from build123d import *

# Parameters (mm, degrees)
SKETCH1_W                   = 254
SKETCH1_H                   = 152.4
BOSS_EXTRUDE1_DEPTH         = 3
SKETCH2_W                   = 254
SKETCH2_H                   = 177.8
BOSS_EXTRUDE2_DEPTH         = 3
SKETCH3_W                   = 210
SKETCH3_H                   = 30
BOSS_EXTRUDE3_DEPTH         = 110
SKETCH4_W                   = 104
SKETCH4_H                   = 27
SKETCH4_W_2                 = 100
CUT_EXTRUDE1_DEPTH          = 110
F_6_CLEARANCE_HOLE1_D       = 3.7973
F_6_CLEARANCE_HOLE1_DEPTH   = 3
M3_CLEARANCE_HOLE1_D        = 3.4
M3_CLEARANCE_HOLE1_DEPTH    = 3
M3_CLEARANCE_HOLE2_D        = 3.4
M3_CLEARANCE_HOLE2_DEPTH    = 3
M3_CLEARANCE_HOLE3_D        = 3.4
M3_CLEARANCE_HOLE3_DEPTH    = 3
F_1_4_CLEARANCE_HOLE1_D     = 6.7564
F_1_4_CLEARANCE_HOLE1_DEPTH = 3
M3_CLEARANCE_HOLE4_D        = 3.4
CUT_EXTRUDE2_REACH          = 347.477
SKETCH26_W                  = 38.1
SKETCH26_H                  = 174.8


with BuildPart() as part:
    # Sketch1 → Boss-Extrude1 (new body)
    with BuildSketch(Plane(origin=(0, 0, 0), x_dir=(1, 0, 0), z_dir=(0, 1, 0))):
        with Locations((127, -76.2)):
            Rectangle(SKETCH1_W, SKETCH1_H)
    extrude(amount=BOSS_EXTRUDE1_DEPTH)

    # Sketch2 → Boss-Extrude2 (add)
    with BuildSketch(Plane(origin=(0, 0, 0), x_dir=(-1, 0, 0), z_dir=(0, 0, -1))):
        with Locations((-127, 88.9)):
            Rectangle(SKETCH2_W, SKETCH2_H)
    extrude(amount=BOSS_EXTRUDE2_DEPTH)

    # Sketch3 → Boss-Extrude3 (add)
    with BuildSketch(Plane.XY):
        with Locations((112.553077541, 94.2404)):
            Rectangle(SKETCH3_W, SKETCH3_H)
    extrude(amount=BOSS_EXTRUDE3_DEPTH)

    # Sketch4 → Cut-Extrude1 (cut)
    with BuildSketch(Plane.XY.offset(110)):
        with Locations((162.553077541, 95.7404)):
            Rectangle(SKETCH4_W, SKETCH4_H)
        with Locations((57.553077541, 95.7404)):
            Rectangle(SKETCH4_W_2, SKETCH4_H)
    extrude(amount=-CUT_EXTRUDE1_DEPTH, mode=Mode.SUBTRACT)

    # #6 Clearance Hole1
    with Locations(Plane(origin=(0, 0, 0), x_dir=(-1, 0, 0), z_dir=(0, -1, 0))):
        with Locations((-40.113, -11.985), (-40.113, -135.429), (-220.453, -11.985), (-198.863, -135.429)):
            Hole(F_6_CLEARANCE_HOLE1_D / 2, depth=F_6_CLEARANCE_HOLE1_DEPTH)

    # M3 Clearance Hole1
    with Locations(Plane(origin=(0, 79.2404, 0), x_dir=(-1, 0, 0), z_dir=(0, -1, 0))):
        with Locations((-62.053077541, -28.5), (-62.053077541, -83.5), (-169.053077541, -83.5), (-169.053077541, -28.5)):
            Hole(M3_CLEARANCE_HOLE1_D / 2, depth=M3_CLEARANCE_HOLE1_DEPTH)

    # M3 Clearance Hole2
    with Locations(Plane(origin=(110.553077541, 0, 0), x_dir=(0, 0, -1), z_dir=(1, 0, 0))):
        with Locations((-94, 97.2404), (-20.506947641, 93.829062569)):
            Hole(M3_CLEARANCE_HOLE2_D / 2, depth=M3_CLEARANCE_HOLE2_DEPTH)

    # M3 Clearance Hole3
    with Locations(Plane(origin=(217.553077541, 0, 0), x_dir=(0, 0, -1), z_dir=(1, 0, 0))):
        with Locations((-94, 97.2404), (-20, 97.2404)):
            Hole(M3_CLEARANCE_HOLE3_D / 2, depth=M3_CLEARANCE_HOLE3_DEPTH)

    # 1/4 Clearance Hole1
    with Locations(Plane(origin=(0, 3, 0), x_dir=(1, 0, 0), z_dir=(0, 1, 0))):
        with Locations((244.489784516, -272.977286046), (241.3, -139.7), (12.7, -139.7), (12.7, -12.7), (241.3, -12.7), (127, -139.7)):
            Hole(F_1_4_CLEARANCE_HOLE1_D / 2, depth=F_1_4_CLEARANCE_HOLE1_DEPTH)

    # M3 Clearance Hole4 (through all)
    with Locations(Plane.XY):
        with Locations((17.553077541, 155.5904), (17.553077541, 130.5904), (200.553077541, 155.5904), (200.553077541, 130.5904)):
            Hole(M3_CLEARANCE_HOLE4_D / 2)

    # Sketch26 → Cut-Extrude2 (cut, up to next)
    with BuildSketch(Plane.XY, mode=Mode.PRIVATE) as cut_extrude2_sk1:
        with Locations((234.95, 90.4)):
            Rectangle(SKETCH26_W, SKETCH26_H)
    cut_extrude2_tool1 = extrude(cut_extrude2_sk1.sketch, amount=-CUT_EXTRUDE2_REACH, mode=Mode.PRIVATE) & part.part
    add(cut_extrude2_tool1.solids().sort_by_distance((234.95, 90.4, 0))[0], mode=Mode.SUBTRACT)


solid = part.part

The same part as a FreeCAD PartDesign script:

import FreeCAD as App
import Part
import Sketcher
from FreeCAD import Vector

doc = App.newDocument("Part")
params = doc.addObject("Spreadsheet::Sheet", "Params")
for row, (alias, value) in enumerate([
    ("sketch1_width", "254 mm"),
    ("sketch1_height", "152.4 mm"),
    ("pad1_length", "3 mm"),
    ("sketch2_width", "254 mm"),
    ("sketch2_height", "177.8 mm"),
    ("pad2_length", "3 mm"),
    ("sketch3_width", "210 mm"),
    ("sketch3_height", "30 mm"),
    ("pad3_length", "110 mm"),
    ("sketch4_width", "104 mm"),
    ("sketch4_width2", "100 mm"),
    ("sketch4_height", "27 mm"),
    ("pocket1_length", "110 mm"),
    ("hole_diameter", "3.7973 mm"),
    ("hole_depth", "3 mm"),
    ("sketch6_diameter", "3.4 mm"),
    ("hole2_diameter", "3.4 mm"),
    ("hole2_depth", "3 mm"),
    ("sketch7_diameter", "3.4 mm"),
    ("hole3_diameter", "3.4 mm"),
    ("hole3_depth", "3 mm"),
    ("sketch8_diameter", "3.4 mm"),
    ("hole4_diameter", "3.4 mm"),
    ("hole4_depth", "3 mm"),
    ("hole5_diameter", "6.7564 mm"),
    ("hole5_depth", "3 mm"),
    ("sketch10_diameter", "3.4 mm"),
    ("hole6_diameter", "3.4 mm"),
    ("sketch11_width", "38.1 mm"),
    ("sketch11_height", "174.8 mm"),
], start=1):
    params.set(f"A{row}", alias)
    params.set(f"B{row}", "=" + value)
    params.setAlias(f"B{row}", alias)

body = doc.addObject("PartDesign::Body", "Body")

sketch1 = doc.addObject("Sketcher::SketchObject", "Sketch")
body.addObject(sketch1)
sketch1.AttachmentSupport = (doc.XZ_Plane, [""])
sketch1.MapMode = "FlatFace"
sketch1.addGeometry([
    Part.LineSegment(Vector(0, 0, 0), Vector(0, 152, 0)),
    Part.LineSegment(Vector(0, 152, 0), Vector(254, 152, 0)),
    Part.LineSegment(Vector(254, 152, 0), Vector(254, 0, 0)),
    Part.LineSegment(Vector(254, 0, 0), Vector(0, 0, 0)),
], False)
sketch1.addConstraint([
    Sketcher.Constraint("Coincident", 0, 2, 1, 1),
    Sketcher.Constraint("Coincident", 1, 2, 2, 1),
    Sketcher.Constraint("Coincident", 2, 2, 3, 1),
    Sketcher.Constraint("Coincident", 3, 2, 0, 1),
    Sketcher.Constraint("Vertical", 0),
    Sketcher.Constraint("Horizontal", 1),
    Sketcher.Constraint("Vertical", 2),
    Sketcher.Constraint("Horizontal", 3),
    Sketcher.Constraint("Coincident", 3, 2, -1, 1),
    Sketcher.Constraint("DistanceX", 1, 1, 1, 2, 254.0),
    Sketcher.Constraint("DistanceY", 0, 1, 0, 2, 152.4),
])
sketch1.setExpression("Constraints[9]", "Params.sketch1_width")
sketch1.setExpression("Constraints[10]", "Params.sketch1_height")
pad1 = doc.addObject("PartDesign::Pad", "Pad")
body.addObject(pad1)
pad1.Profile = sketch1
pad1.setExpression("Length", "Params.pad1_length")
pad1.Reversed = True

sketch2 = doc.addObject("Sketcher::SketchObject", "Sketch001")
body.addObject(sketch2)
sketch2.AttachmentSupport = (doc.XY_Plane, [""])
sketch2.MapMode = "FlatFace"
sketch2.addGeometry([
    Part.LineSegment(Vector(254, 178, 0), Vector(254, 0, 0)),
    Part.LineSegment(Vector(254, 0, 0), Vector(0, 0, 0)),
    Part.LineSegment(Vector(0, 0, 0), Vector(0, 178, 0)),
    Part.LineSegment(Vector(0, 178, 0), Vector(254, 178, 0)),
], False)
sketch2.addConstraint([
    Sketcher.Constraint("Coincident", 0, 2, 1, 1),
    Sketcher.Constraint("Coincident", 1, 2, 2, 1),
    Sketcher.Constraint("Coincident", 2, 2, 3, 1),
    Sketcher.Constraint("Coincident", 3, 2, 0, 1),
    Sketcher.Constraint("Vertical", 0),
    Sketcher.Constraint("Horizontal", 1),
    Sketcher.Constraint("Vertical", 2),
    Sketcher.Constraint("Horizontal", 3),
    Sketcher.Constraint("Coincident", 1, 2, -1, 1),
    Sketcher.Constraint("DistanceX", 1, 2, 1, 1, 254.0),
    Sketcher.Constraint("DistanceY", 0, 2, 0, 1, 177.8),
])
sketch2.setExpression("Constraints[9]", "Params.sketch2_width")
sketch2.setExpression("Constraints[10]", "Params.sketch2_height")
pad2 = doc.addObject("PartDesign::Pad", "Pad001")
body.addObject(pad2)
pad2.Profile = sketch2
pad2.setExpression("Length", "Params.pad2_length")
pad2.Reversed = True

sketch3 = doc.addObject("Sketcher::SketchObject", "Sketch002")
body.addObject(sketch3)
sketch3.AttachmentSupport = (doc.XY_Plane, [""])
sketch3.MapMode = "FlatFace"
sketch3.addGeometry([
    Part.LineSegment(Vector(8, 109, 0), Vector(8, 79, 0)),
    Part.LineSegment(Vector(8, 79, 0), Vector(218, 79, 0)),
    Part.LineSegment(Vector(218, 79, 0), Vector(218, 109, 0)),
    Part.LineSegment(Vector(218, 109, 0), Vector(8, 109, 0)),
], False)
sketch3.addConstraint([
    Sketcher.Constraint("Coincident", 0, 2, 1, 1),
    Sketcher.Constraint("Coincident", 1, 2, 2, 1),
    Sketcher.Constraint("Coincident", 2, 2, 3, 1),
    Sketcher.Constraint("Coincident", 3, 2, 0, 1),
    Sketcher.Constraint("Vertical", 0),
    Sketcher.Constraint("Horizontal", 1),
    Sketcher.Constraint("Vertical", 2),
    Sketcher.Constraint("Horizontal", 3),
    Sketcher.Constraint("DistanceX", 1, 1, 1, 2, 210.0),
    Sketcher.Constraint("DistanceY", 0, 2, 0, 1, 30.0),
    Sketcher.Constraint("DistanceY", -1, 1, 0, 2, 79.2404),
    Sketcher.Constraint("DistanceX", -1, 1, 0, 2, 7.553078),
])
sketch3.setExpression("Constraints[8]", "Params.sketch3_width")
sketch3.setExpression("Constraints[9]", "Params.sketch3_height")
pad3 = doc.addObject("PartDesign::Pad", "Pad002")
body.addObject(pad3)
pad3.Profile = sketch3
pad3.setExpression("Length", "Params.pad3_length")

sketch4 = doc.addObject("Sketcher::SketchObject", "Sketch003")
body.addObject(sketch4)
sketch4.AttachmentSupport = (doc.XY_Plane, [""])
sketch4.MapMode = "FlatFace"
sketch4.AttachmentOffset = App.Placement(Vector(0, 0, 110), App.Rotation())
sketch4.addGeometry([
    Part.LineSegment(Vector(111, 109, 0), Vector(111, 82, 0)),
    Part.LineSegment(Vector(111, 82, 0), Vector(215, 82, 0)),
    Part.LineSegment(Vector(215, 82, 0), Vector(215, 109, 0)),
    Part.LineSegment(Vector(215, 109, 0), Vector(111, 109, 0)),
    Part.LineSegment(Vector(8, 109, 0), Vector(8, 82, 0)),
    Part.LineSegment(Vector(8, 82, 0), Vector(108, 82, 0)),
    Part.LineSegment(Vector(108, 82, 0), Vector(108, 109, 0)),
    Part.LineSegment(Vector(108, 109, 0), Vector(8, 109, 0)),
], False)
sketch4.addConstraint([
    Sketcher.Constraint("Coincident", 0, 2, 1, 1),
    Sketcher.Constraint("Coincident", 1, 2, 2, 1),
    Sketcher.Constraint("Coincident", 2, 2, 3, 1),
    Sketcher.Constraint("Coincident", 3, 2, 0, 1),
    Sketcher.Constraint("Coincident", 4, 2, 5, 1),
    Sketcher.Constraint("Coincident", 5, 2, 6, 1),
    Sketcher.Constraint("Coincident", 6, 2, 7, 1),
    Sketcher.Constraint("Coincident", 7, 2, 4, 1),
    Sketcher.Constraint("Vertical", 0),
    Sketcher.Constraint("Horizontal", 1),
    Sketcher.Constraint("Vertical", 2),
    Sketcher.Constraint("Horizontal", 3),
    Sketcher.Constraint("Vertical", 4),
    Sketcher.Constraint("Horizontal", 5),
    Sketcher.Constraint("Vertical", 6),
    Sketcher.Constraint("Horizontal", 7),
    Sketcher.Constraint("Horizontal", 1, 2, 4, 2),
    Sketcher.Constraint("Horizontal", 3, 2, 6, 2),
    Sketcher.Constraint("DistanceX", 1, 1, 1, 2, 104.0),
    Sketcher.Constraint("DistanceX", 5, 1, 5, 2, 100.0),
    Sketcher.Constraint("DistanceY", 0, 2, 0, 1, 27.0),
    Sketcher.Constraint("DistanceX", 4, 2, 0, 2, 103.0),
    Sketcher.Constraint("DistanceY", -1, 1, 0, 2, 82.2404),
    Sketcher.Constraint("DistanceX", -1, 1, 0, 2, 110.553078),
])
sketch4.setExpression("Constraints[18]", "Params.sketch4_width")
sketch4.setExpression("Constraints[19]", "Params.sketch4_width2")
sketch4.setExpression("Constraints[20]", "Params.sketch4_height")
pocket1 = doc.addObject("PartDesign::Pocket", "Pocket")
body.addObject(pocket1)
pocket1.Profile = sketch4
pocket1.setExpression("Length", "Params.pocket1_length")

sketch5 = doc.addObject("Sketcher::SketchObject", "Sketch004")
body.addObject(sketch5)
sketch5.AttachmentSupport = (doc.XZ_Plane, [""])
sketch5.MapMode = "FlatFace"
sketch5.addGeometry([
    Part.Circle(Vector(40.1, 12, 0), Vector(0, 0, 1), 1.9),
    Part.Circle(Vector(40.1, 135.4, 0), Vector(0, 0, 1), 1.9),
    Part.Circle(Vector(220.5, 12, 0), Vector(0, 0, 1), 1.9),
    Part.Circle(Vector(198.9, 135.4, 0), Vector(0, 0, 1), 1.9),
], False)
sketch5.addConstraint([
    Sketcher.Constraint("Equal", 0, 1),
    Sketcher.Constraint("Equal", 1, 2),
    Sketcher.Constraint("Equal", 2, 3),
    Sketcher.Constraint("Horizontal", 0, 3, 2, 3),
    Sketcher.Constraint("Horizontal", 1, 3, 3, 3),
    Sketcher.Constraint("Vertical", 0, 3, 1, 3),
    Sketcher.Constraint("Diameter", 0, 3.7973),
    Sketcher.Constraint("DistanceX", 0, 3, 2, 3, 180.34),
    Sketcher.Constraint("DistanceX", 3, 3, 2, 3, 21.59),
    Sketcher.Constraint("DistanceX", -1, 1, 0, 3, 40.113),
    Sketcher.Constraint("DistanceY", -1, 1, 0, 3, 11.985),
    Sketcher.Constraint("DistanceY", -1, 1, 1, 3, 135.429),
])
doc.recompute()
hole = doc.addObject("PartDesign::Hole", "Hole")
body.addObject(hole)
hole.Profile = sketch5
hole.ThreadType = "None"
hole.setExpression("Diameter", "Params.hole_diameter")
hole.DepthType = "Dimension"
hole.setExpression("Depth", "Params.hole_depth")
hole.DrillPoint = "Flat"

sketch6 = doc.addObject("Sketcher::SketchObject", "Sketch005")
body.addObject(sketch6)
sketch6.AttachmentSupport = (doc.XZ_Plane, [""])
sketch6.MapMode = "FlatFace"
sketch6.AttachmentOffset = App.Placement(Vector(0, 0, -79.2404), App.Rotation())
sketch6.addGeometry([
    Part.Circle(Vector(62.1, 28.5, 0), Vector(0, 0, 1), 1.7),
    Part.Circle(Vector(62.1, 83.5, 0), Vector(0, 0, 1), 1.7),
    Part.Circle(Vector(169.1, 83.5, 0), Vector(0, 0, 1), 1.7),
    Part.Circle(Vector(169.1, 28.5, 0), Vector(0, 0, 1), 1.7),
], False)
sketch6.addConstraint([
    Sketcher.Constraint("Equal", 0, 1),
    Sketcher.Constraint("Equal", 1, 2),
    Sketcher.Constraint("Equal", 2, 3),
    Sketcher.Constraint("Horizontal", 1, 3, 2, 3),
    Sketcher.Constraint("Horizontal", 0, 3, 3, 3),
    Sketcher.Constraint("Vertical", 0, 3, 1, 3),
    Sketcher.Constraint("Vertical", 2, 3, 3, 3),
    Sketcher.Constraint("Diameter", 0, 3.4),
    Sketcher.Constraint("DistanceY", 0, 3, 1, 3, 55.0),
    Sketcher.Constraint("DistanceX", 1, 3, 2, 3, 107.0),
    Sketcher.Constraint("DistanceY", -1, 1, 0, 3, 28.5),
    Sketcher.Constraint("DistanceX", -1, 1, 0, 3, 62.053078),
])
sketch6.setExpression("Constraints[7]", "Params.sketch6_diameter")
doc.recompute()
hole2 = doc.addObject("PartDesign::Hole", "Hole001")
body.addObject(hole2)
hole2.Profile = sketch6
hole2.ThreadType = "None"
hole2.setExpression("Diameter", "Params.hole2_diameter")
hole2.DepthType = "Dimension"
hole2.setExpression("Depth", "Params.hole2_depth")
hole2.DrillPoint = "Flat"

sketch7 = doc.addObject("Sketcher::SketchObject", "Sketch006")
body.addObject(sketch7)
sketch7.AttachmentSupport = (doc.YZ_Plane, [""])
sketch7.MapMode = "FlatFace"
sketch7.AttachmentOffset = App.Placement(Vector(0, 0, 110.553078), App.Rotation())
sketch7.addGeometry([
    Part.Circle(Vector(97.2, 94, 0), Vector(0, 0, 1), 1.7),
    Part.Circle(Vector(93.8, 20.5, 0), Vector(0, 0, 1), 1.7),
], False)
sketch7.addConstraint([
    Sketcher.Constraint("Equal", 0, 1),
    Sketcher.Constraint("Diameter", 0, 3.4),
    Sketcher.Constraint("DistanceY", -1, 1, 0, 3, 94.0),
    Sketcher.Constraint("DistanceX", -1, 1, 0, 3, 97.2404),
    Sketcher.Constraint("DistanceX", -1, 1, 1, 3, 93.829063),
    Sketcher.Constraint("DistanceY", -1, 1, 1, 3, 20.506948),
])
sketch7.setExpression("Constraints[1]", "Params.sketch7_diameter")
doc.recompute()
hole3 = doc.addObject("PartDesign::Hole", "Hole002")
body.addObject(hole3)
hole3.Profile = sketch7
hole3.ThreadType = "None"
hole3.setExpression("Diameter", "Params.hole3_diameter")
hole3.DepthType = "Dimension"
hole3.setExpression("Depth", "Params.hole3_depth")
hole3.DrillPoint = "Flat"

sketch8 = doc.addObject("Sketcher::SketchObject", "Sketch007")
body.addObject(sketch8)
sketch8.AttachmentSupport = (doc.YZ_Plane, [""])
sketch8.MapMode = "FlatFace"
sketch8.AttachmentOffset = App.Placement(Vector(0, 0, 217.553078), App.Rotation())
sketch8.addGeometry([
    Part.Circle(Vector(97.2, 94, 0), Vector(0, 0, 1), 1.7),
    Part.Circle(Vector(97.2, 20, 0), Vector(0, 0, 1), 1.7),
], False)
sketch8.addConstraint([
    Sketcher.Constraint("Equal", 0, 1),
    Sketcher.Constraint("Vertical", 0, 3, 1, 3),
    Sketcher.Constraint("Diameter", 0, 3.4),
    Sketcher.Constraint("DistanceY", -1, 1, 0, 3, 94.0),
    Sketcher.Constraint("DistanceY", -1, 1, 1, 3, 20.0),
    Sketcher.Constraint("DistanceX", -1, 1, 0, 3, 97.2404),
])
sketch8.setExpression("Constraints[2]", "Params.sketch8_diameter")
doc.recompute()
hole4 = doc.addObject("PartDesign::Hole", "Hole003")
body.addObject(hole4)
hole4.Profile = sketch8
hole4.ThreadType = "None"
hole4.setExpression("Diameter", "Params.hole4_diameter")
hole4.DepthType = "Dimension"
hole4.setExpression("Depth", "Params.hole4_depth")
hole4.DrillPoint = "Flat"

sketch9 = doc.addObject("Sketcher::SketchObject", "Sketch008")
body.addObject(sketch9)
sketch9.AttachmentSupport = (doc.XZ_Plane, [""])
sketch9.MapMode = "FlatFace"
sketch9.AttachmentOffset = App.Placement(Vector(0, 0, -3), App.Rotation())
sketch9.addGeometry([
    Part.Circle(Vector(244.5, 273, 0), Vector(0, 0, 1), 3.4),
    Part.Circle(Vector(241.3, 139.7, 0), Vector(0, 0, 1), 3.4),
    Part.Circle(Vector(12.7, 139.7, 0), Vector(0, 0, 1), 3.4),
    Part.Circle(Vector(12.7, 12.7, 0), Vector(0, 0, 1), 3.4),
    Part.Circle(Vector(241.3, 12.7, 0), Vector(0, 0, 1), 3.4),
    Part.Circle(Vector(127, 139.7, 0), Vector(0, 0, 1), 3.4),
], False)
sketch9.addConstraint([
    Sketcher.Constraint("Equal", 0, 1),
    Sketcher.Constraint("Equal", 1, 2),
    Sketcher.Constraint("Equal", 2, 3),
    Sketcher.Constraint("Equal", 3, 4),
    Sketcher.Constraint("Equal", 4, 5),
    Sketcher.Constraint("Horizontal", 1, 3, 2, 3),
    Sketcher.Constraint("Horizontal", 3, 3, 4, 3),
    Sketcher.Constraint("Horizontal", 2, 3, 5, 3),
    Sketcher.Constraint("Vertical", 2, 3, 3, 3),
    Sketcher.Constraint("Vertical", 1, 3, 4, 3),
    Sketcher.Constraint("DistanceX", -1, 1, 5, 3, 127.0),
    Sketcher.Constraint("DistanceY", 3, 3, 2, 3, 127.0),
    Sketcher.Constraint("Diameter", 0, 6.7564),
    Sketcher.Constraint("DistanceX", -1, 1, 1, 3, 241.3),
    Sketcher.Constraint("DistanceY", -1, 1, 1, 3, 139.7),
    Sketcher.Constraint("DistanceX", -1, 1, 2, 3, 12.7),
    Sketcher.Constraint("DistanceX", -1, 1, 0, 3, 244.489785),
    Sketcher.Constraint("DistanceY", -1, 1, 0, 3, 272.977286),
])
doc.recompute()
hole5 = doc.addObject("PartDesign::Hole", "Hole004")
body.addObject(hole5)
hole5.Profile = sketch9
hole5.ThreadType = "None"
hole5.setExpression("Diameter", "Params.hole5_diameter")
hole5.DepthType = "Dimension"
hole5.setExpression("Depth", "Params.hole5_depth")
hole5.DrillPoint = "Flat"
hole5.Reversed = True

sketch10 = doc.addObject("Sketcher::SketchObject", "Sketch009")
body.addObject(sketch10)
sketch10.AttachmentSupport = (doc.XY_Plane, [""])
sketch10.MapMode = "FlatFace"
sketch10.addGeometry([
    Part.Circle(Vector(17.6, 155.6, 0), Vector(0, 0, 1), 1.7),
    Part.Circle(Vector(17.6, 130.6, 0), Vector(0, 0, 1), 1.7),
    Part.Circle(Vector(200.6, 155.6, 0), Vector(0, 0, 1), 1.7),
    Part.Circle(Vector(200.6, 130.6, 0), Vector(0, 0, 1), 1.7),
], False)
sketch10.addConstraint([
    Sketcher.Constraint("Equal", 0, 1),
    Sketcher.Constraint("Equal", 1, 2),
    Sketcher.Constraint("Equal", 2, 3),
    Sketcher.Constraint("Horizontal", 0, 3, 2, 3),
    Sketcher.Constraint("Horizontal", 1, 3, 3, 3),
    Sketcher.Constraint("Vertical", 0, 3, 1, 3),
    Sketcher.Constraint("Vertical", 2, 3, 3, 3),
    Sketcher.Constraint("Diameter", 0, 3.4),
    Sketcher.Constraint("DistanceY", 1, 3, 0, 3, 25.0),
    Sketcher.Constraint("DistanceX", 0, 3, 2, 3, 183.0),
    Sketcher.Constraint("DistanceY", -1, 1, 0, 3, 155.5904),
    Sketcher.Constraint("DistanceX", -1, 1, 0, 3, 17.553078),
])
sketch10.setExpression("Constraints[7]", "Params.sketch10_diameter")
doc.recompute()
hole6 = doc.addObject("PartDesign::Hole", "Hole005")
body.addObject(hole6)
hole6.Profile = sketch10
hole6.ThreadType = "None"
hole6.setExpression("Diameter", "Params.hole6_diameter")
hole6.DepthType = "ThroughAll"

sketch11 = doc.addObject("Sketcher::SketchObject", "Sketch010")
body.addObject(sketch11)
sketch11.AttachmentSupport = (doc.XY_Plane, [""])
sketch11.MapMode = "FlatFace"
sketch11.addGeometry([
    Part.LineSegment(Vector(216, 178, 0), Vector(216, 3, 0)),
    Part.LineSegment(Vector(216, 3, 0), Vector(254, 3, 0)),
    Part.LineSegment(Vector(254, 3, 0), Vector(254, 178, 0)),
    Part.LineSegment(Vector(254, 178, 0), Vector(216, 178, 0)),
], False)
sketch11.addConstraint([
    Sketcher.Constraint("Coincident", 0, 2, 1, 1),
    Sketcher.Constraint("Coincident", 1, 2, 2, 1),
    Sketcher.Constraint("Coincident", 2, 2, 3, 1),
    Sketcher.Constraint("Coincident", 3, 2, 0, 1),
    Sketcher.Constraint("Vertical", 0),
    Sketcher.Constraint("Horizontal", 1),
    Sketcher.Constraint("Vertical", 2),
    Sketcher.Constraint("Horizontal", 3),
    Sketcher.Constraint("DistanceX", 1, 1, 1, 2, 38.1),
    Sketcher.Constraint("DistanceY", 0, 2, 0, 1, 174.8),
    Sketcher.Constraint("DistanceY", -1, 1, 0, 2, 3.0),
    Sketcher.Constraint("DistanceX", -1, 1, 1, 2, 254.0),
])
sketch11.setExpression("Constraints[8]", "Params.sketch11_width")
sketch11.setExpression("Constraints[9]", "Params.sketch11_height")
pocket2 = doc.addObject("PartDesign::Pocket", "Pocket001")
body.addObject(pocket2)
pocket2.Profile = sketch11
pocket2.Type = "UpToFirst"

doc.recompute()
